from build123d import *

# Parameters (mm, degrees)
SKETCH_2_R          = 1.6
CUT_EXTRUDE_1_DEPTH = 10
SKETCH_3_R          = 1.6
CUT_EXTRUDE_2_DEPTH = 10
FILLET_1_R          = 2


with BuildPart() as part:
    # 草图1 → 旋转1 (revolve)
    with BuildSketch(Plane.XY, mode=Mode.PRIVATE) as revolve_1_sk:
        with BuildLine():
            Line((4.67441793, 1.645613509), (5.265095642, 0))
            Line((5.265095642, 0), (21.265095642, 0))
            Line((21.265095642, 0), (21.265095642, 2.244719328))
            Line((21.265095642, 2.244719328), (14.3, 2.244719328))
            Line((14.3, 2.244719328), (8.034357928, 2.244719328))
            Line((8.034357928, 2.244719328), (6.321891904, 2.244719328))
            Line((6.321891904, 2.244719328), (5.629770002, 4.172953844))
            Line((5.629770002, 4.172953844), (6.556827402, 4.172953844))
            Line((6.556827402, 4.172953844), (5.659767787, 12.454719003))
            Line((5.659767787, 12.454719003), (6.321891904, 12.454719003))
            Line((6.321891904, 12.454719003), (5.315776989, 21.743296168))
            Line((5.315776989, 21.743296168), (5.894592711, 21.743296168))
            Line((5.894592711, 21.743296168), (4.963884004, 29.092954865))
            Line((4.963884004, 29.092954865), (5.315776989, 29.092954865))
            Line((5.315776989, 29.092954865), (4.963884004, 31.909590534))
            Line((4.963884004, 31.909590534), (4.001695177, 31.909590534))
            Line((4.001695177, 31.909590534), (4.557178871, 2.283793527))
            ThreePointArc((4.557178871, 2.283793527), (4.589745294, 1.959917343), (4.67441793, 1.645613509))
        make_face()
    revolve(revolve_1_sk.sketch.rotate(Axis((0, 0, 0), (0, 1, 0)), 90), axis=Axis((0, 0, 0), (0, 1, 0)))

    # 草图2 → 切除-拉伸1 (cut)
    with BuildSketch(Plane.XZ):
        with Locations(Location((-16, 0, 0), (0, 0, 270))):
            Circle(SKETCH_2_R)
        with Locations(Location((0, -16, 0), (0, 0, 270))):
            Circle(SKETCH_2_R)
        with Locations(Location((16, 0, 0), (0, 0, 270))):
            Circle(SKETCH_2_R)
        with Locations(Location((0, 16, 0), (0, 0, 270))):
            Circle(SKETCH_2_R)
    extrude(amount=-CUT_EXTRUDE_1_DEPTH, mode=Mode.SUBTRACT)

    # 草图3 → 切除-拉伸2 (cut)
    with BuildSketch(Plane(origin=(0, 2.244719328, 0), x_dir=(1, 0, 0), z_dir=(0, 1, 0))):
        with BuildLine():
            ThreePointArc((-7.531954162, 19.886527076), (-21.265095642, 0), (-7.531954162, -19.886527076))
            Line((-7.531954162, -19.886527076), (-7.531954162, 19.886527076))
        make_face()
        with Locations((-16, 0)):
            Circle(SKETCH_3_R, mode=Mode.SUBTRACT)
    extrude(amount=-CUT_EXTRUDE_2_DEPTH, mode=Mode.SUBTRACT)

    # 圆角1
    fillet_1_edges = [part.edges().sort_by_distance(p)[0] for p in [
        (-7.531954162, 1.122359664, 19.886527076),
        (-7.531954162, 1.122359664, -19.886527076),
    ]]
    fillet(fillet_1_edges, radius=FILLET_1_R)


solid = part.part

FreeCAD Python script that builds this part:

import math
import FreeCAD as App
import Part
import Sketcher
from FreeCAD import Vector


def edges_at(feature, points):
    """Names of the edges that pass closest to the given points."""
    edges = feature.Shape.Edges
    near = lambda p: min(range(len(edges)), key=lambda i: edges[i].distToShape(Part.Vertex(*p))[0])
    return sorted({f"Edge{near(p) + 1}" for p in points})

doc = App.newDocument("Part")
params = doc.addObject("Spreadsheet::Sheet", "Params")
for row, (alias, value) in enumerate([
    ("sketch1_radius", "2 mm"),
    ("sketch1_width", "16 mm"),
    ("revolution_angle", "360 deg"),
    ("sketch2_diameter", "3.2 mm"),
    ("pocket1_length", "10 mm"),
    ("sketch3_diameter", "3.2 mm"),
    ("pocket2_length", "10 mm"),
    ("fillet_radius", "2 mm"),
], start=1):
    params.set(f"A{row}", alias)
    params.set(f"B{row}", "=" + value)
    params.setAlias(f"B{row}", alias)

body = doc.addObject("PartDesign::Body", "Body")

sketch1 = body.newObject("Sketcher::SketchObject", "Sketch")
sketch1.AttachmentSupport = (doc.getObject("XY_Plane"), [""])
sketch1.MapMode = "FlatFace"
sketch1.addGeometry(Part.LineSegment(Vector(4.674418, 1.645614, 0), Vector(5.265096, 0, 0)), False)
sketch1.addGeometry(Part.LineSegment(Vector(5.265096, 0, 0), Vector(21.265096, 0, 0)), False)
sketch1.addGeometry(Part.LineSegment(Vector(21.265096, 0, 0), Vector(21.265096, 2.244719, 0)), False)
sketch1.addGeometry(Part.LineSegment(Vector(21.265096, 2.244719, 0), Vector(6.321892, 2.244719, 0)), False)
sketch1.addGeometry(Part.LineSegment(Vector(6.321892, 2.244719, 0), Vector(5.62977, 4.172954, 0)), False)
sketch1.addGeometry(Part.LineSegment(Vector(5.62977, 4.172954, 0), Vector(6.556827, 4.172954, 0)), False)
sketch1.addGeometry(Part.LineSegment(Vector(6.556827, 4.172954, 0), Vector(5.659768, 12.454719, 0)), False)
sketch1.addGeometry(Part.LineSegment(Vector(5.659768, 12.454719, 0), Vector(6.321892, 12.454719, 0)), False)
sketch1.addGeometry(Part.LineSegment(Vector(6.321892, 12.454719, 0), Vector(5.315777, 21.743296, 0)), False)
sketch1.addGeometry(Part.LineSegment(Vector(5.315777, 21.743296, 0), Vector(5.894593, 21.743296, 0)), False)
sketch1.addGeometry(Part.LineSegment(Vector(5.894593, 21.743296, 0), Vector(4.963884, 29.092955, 0)), False)
sketch1.addGeometry(Part.LineSegment(Vector(4.963884, 29.092955, 0), Vector(5.315777, 29.092955, 0)), False)
sketch1.addGeometry(Part.LineSegment(Vector(5.315777, 29.092955, 0), Vector(4.963884, 31.909591, 0)), False)
sketch1.addGeometry(Part.LineSegment(Vector(4.963884, 31.909591, 0), Vector(4.001695, 31.909591, 0)), False)
sketch1.addGeometry(Part.LineSegment(Vector(4.001695, 31.909591, 0), Vector(4.557179, 2.283794, 0)), False)
sketch1.addGeometry(Part.ArcOfCircle(Part.Circle(Vector(6.556827, 2.321287, 0), Vector(0, 0, 1), 2), math.radians(-178.92583), math.radians(-160.25487)), False)
sketch1.addConstraint(Sketcher.Constraint("Coincident", 0, 2, 1, 1))
sketch1.addConstraint(Sketcher.Constraint("Coincident", 1, 2, 2, 1))
sketch1.addConstraint(Sketcher.Constraint("Coincident", 2, 2, 3, 1))
sketch1.addConstraint(Sketcher.Constraint("Coincident", 3, 2, 4, 1))
sketch1.addConstraint(Sketcher.Constraint("Coincident", 4, 2, 5, 1))
sketch1.addConstraint(Sketcher.Constraint("Coincident", 5, 2, 6, 1))
sketch1.addConstraint(Sketcher.Constraint("Coincident", 6, 2, 7, 1))
sketch1.addConstraint(Sketcher.Constraint("Coincident", 7, 2, 8, 1))
sketch1.addConstraint(Sketcher.Constraint("Coincident", 8, 2, 9, 1))
sketch1.addConstraint(Sketcher.Constraint("Coincident", 9, 2, 10, 1))
sketch1.addConstraint(Sketcher.Constraint("Coincident", 10, 2, 11, 1))
sketch1.addConstraint(Sketcher.Constraint("Coincident", 11, 2, 12, 1))
sketch1.addConstraint(Sketcher.Constraint("Coincident", 12, 2, 13, 1))
sketch1.addConstraint(Sketcher.Constraint("Coincident", 13, 2, 14, 1))
sketch1.addConstraint(Sketcher.Constraint("Tangent", 14, 2, 15, 1))
sketch1.addConstraint(Sketcher.Constraint("Tangent", 15, 2, 0, 1))
sketch1.addConstraint(Sketcher.Constraint("Horizontal", 1))
sketch1.addConstraint(Sketcher.Constraint("Vertical", 2))
sketch1.addConstraint(Sketcher.Constraint("Horizontal", 3))
sketch1.addConstraint(Sketcher.Constraint("Horizontal", 5))
sketch1.addConstraint(Sketcher.Constraint("Horizontal", 7))
sketch1.addConstraint(Sketcher.Constraint("Horizontal", 9))
sketch1.addConstraint(Sketcher.Constraint("Horizontal", 11))
sketch1.addConstraint(Sketcher.Constraint("Horizontal", 13))
sketch1.addConstraint(Sketcher.Constraint("PointOnObject", 0, 2, -1))
sketch1.addConstraint(Sketcher.Constraint("Parallel", 0, 4))
sketch1.addConstraint(Sketcher.Constraint("Parallel", 6, 8))
sketch1.addConstraint(Sketcher.Constraint("Vertical", 15, 3, 5, 2))
sketch1.addConstraint(Sketcher.Constraint("Vertical", 3, 2, 7, 2))
sketch1.addConstraint(Sketcher.Constraint("Vertical", 8, 2, 11, 2))
sketch1.addConstraint(Sketcher.Constraint("Vertical", 10, 2, 12, 2))
sketch1.addConstraint(Sketcher.Constraint("Radius", 15, 2.0))
sketch1.addConstraint(Sketcher.Constraint("DistanceX", 1, 1, 1, 2, 16.0))
sketch1.addConstraint(Sketcher.Constraint("DistanceY", 3, 2, 6, 2, 10.21))
sketch1.addConstraint(Sketcher.Constraint("DistanceY", 4, 2, 10, 2, 24.920001))
sketch1.addConstraint(Sketcher.Constraint("DistanceX", 13, 2, 13, 1, 0.962189))
sketch1.addConstraint(Sketcher.Constraint("DistanceY", 2, 1, 2, 2, 2.244719))
sketch1.addConstraint(Sketcher.Constraint("DistanceX", 9, 2, 7, 2, 0.427299))
sketch1.addConstraint(Sketcher.Constraint("Distance", 0, 1.748412))
sketch1.addConstraint(Sketcher.Constraint("Distance", 8, 9.342908))
sketch1.addConstraint(Sketcher.Constraint("DistanceX", 3, 2, 3, 1, 14.943204))
sketch1.addConstraint(Sketcher.Constraint("DistanceX", 5, 1, 5, 2, 0.927057))
sketch1.addConstraint(Sketcher.Constraint("DistanceX", 7, 1, 7, 2, 0.662124))
sketch1.addConstraint(Sketcher.Constraint("DistanceX", 9, 1, 9, 2, 0.578816))
sketch1.addConstraint(Sketcher.Constraint("DistanceX", 11, 1, 11, 2, 0.351893))
sketch1.addConstraint(Sketcher.Constraint("DistanceX", -1, 1, 3, 2, 6.321892))
sketch1.addConstraint(Sketcher.Constraint("DistanceY", -1, 1, 12, 2, 31.909591))
sketch1.setExpression("Constraints[31]", "Params.sketch1_radius")
sketch1.setExpression("Constraints[32]", "Params.sketch1_width")
revolution = body.newObject("PartDesign::Revolution", "Revolution")
revolution.Profile = sketch1
revolution.ReferenceAxis = (sketch1, ["V_Axis"])
revolution.setExpression("Angle", "Params.revolution_angle")

sketch2 = body.newObject("Sketcher::SketchObject", "Sketch001")
sketch2.AttachmentSupport = (doc.getObject("XZ_Plane"), [""])
sketch2.MapMode = "FlatFace"
sketch2.addGeometry(Part.Circle(Vector(-16, 0, 0), Vector(0, 0, 1), 1.6), False)
sketch2.addGeometry(Part.Circle(Vector(0, -16, 0), Vector(0, 0, 1), 1.6), False)
sketch2.addGeometry(Part.Circle(Vector(16, 0, 0), Vector(0, 0, 1), 1.6), False)
sketch2.addGeometry(Part.Circle(Vector(0, 16, 0), Vector(0, 0, 1), 1.6), False)
sketch2.addConstraint(Sketcher.Constraint("Equal", 0, 1))
sketch2.addConstraint(Sketcher.Constraint("Equal", 1, 2))
sketch2.addConstraint(Sketcher.Constraint("Equal", 2, 3))
sketch2.addConstraint(Sketcher.Constraint("Symmetric", 0, 3, 2, 3, -1, 1))
sketch2.addConstraint(Sketcher.Constraint("Symmetric", 1, 3, 3, 3, -1, 1))
sketch2.addConstraint(Sketcher.Constraint("PointOnObject", 0, 3, -1))
sketch2.addConstraint(Sketcher.Constraint("PointOnObject", 1, 3, -2))
sketch2.addConstraint(Sketcher.Constraint("Diameter", 0, 3.2))
sketch2.addConstraint(Sketcher.Constraint("DistanceX", 0, 3, -1, 1, 16.0))
sketch2.addConstraint(Sketcher.Constraint("DistanceY", 1, 3, -1, 1, 16.0))
sketch2.setExpression("Constraints[7]", "Params.sketch2_diameter")
pocket1 = body.newObject("PartDesign::Pocket", "Pocket")
pocket1.Profile = sketch2
pocket1.setExpression("Length", "Params.pocket1_length")

sketch3 = body.newObject("Sketcher::SketchObject", "Sketch002")
sketch3.AttachmentSupport = (doc.getObject("XZ_Plane"), [""])
sketch3.MapMode = "FlatFace"
sketch3.AttachmentOffset = App.Placement(Vector(0, 0, -2.244719), App.Rotation())
sketch3.addGeometry(Part.ArcOfCircle(Part.Circle(Vector(0, 0, 0), Vector(0, 0, 1), 21.265096), math.radians(110.744011), math.radians(249.255989)), False)
sketch3.addGeometry(Part.LineSegment(Vector(-7.531954, 19.886527, 0), Vector(-7.531954, -19.886527, 0)), False)
sketch3.addGeometry(Part.Circle(Vector(-16, 0, 0), Vector(0, 0, 1), 1.6), False)
sketch3.addConstraint(Sketcher.Constraint("Coincident", 0, 1, 1, 1))
sketch3.addConstraint(Sketcher.Constraint("Coincident", 1, 2, 0, 2))
sketch3.addConstraint(Sketcher.Constraint("Vertical", 1))
sketch3.addConstraint(Sketcher.Constraint("Coincident", 0, 3, -1, 1))
sketch3.addConstraint(Sketcher.Constraint("PointOnObject", 2, 3, -1))
sketch3.addConstraint(Sketcher.Constraint("Diameter", 2, 3.2))
sketch3.addConstraint(Sketcher.Constraint("DistanceX", 2, 3, -1, 1, 16.0))
sketch3.addConstraint(Sketcher.Constraint("Radius", 0, 21.265096))
sketch3.addConstraint(Sketcher.Constraint("DistanceY", 1, 2, 1, 1, 39.773054))
sketch3.setExpression("Constraints[5]", "Params.sketch3_diameter")
pocket2 = body.newObject("PartDesign::Pocket", "Pocket001")
pocket2.Profile = sketch3
pocket2.setExpression("Length", "Params.pocket2_length")
pocket2.Reversed = True
doc.recompute()

fillet = body.newObject("PartDesign::Fillet", "Fillet")
fillet.Base = (pocket2, edges_at(pocket2, [(-7.532, 1.122, 19.887), (-7.532, 1.122, -19.887)]))
fillet.setExpression("Radius", "Params.fillet_radius")

doc.recompute()
